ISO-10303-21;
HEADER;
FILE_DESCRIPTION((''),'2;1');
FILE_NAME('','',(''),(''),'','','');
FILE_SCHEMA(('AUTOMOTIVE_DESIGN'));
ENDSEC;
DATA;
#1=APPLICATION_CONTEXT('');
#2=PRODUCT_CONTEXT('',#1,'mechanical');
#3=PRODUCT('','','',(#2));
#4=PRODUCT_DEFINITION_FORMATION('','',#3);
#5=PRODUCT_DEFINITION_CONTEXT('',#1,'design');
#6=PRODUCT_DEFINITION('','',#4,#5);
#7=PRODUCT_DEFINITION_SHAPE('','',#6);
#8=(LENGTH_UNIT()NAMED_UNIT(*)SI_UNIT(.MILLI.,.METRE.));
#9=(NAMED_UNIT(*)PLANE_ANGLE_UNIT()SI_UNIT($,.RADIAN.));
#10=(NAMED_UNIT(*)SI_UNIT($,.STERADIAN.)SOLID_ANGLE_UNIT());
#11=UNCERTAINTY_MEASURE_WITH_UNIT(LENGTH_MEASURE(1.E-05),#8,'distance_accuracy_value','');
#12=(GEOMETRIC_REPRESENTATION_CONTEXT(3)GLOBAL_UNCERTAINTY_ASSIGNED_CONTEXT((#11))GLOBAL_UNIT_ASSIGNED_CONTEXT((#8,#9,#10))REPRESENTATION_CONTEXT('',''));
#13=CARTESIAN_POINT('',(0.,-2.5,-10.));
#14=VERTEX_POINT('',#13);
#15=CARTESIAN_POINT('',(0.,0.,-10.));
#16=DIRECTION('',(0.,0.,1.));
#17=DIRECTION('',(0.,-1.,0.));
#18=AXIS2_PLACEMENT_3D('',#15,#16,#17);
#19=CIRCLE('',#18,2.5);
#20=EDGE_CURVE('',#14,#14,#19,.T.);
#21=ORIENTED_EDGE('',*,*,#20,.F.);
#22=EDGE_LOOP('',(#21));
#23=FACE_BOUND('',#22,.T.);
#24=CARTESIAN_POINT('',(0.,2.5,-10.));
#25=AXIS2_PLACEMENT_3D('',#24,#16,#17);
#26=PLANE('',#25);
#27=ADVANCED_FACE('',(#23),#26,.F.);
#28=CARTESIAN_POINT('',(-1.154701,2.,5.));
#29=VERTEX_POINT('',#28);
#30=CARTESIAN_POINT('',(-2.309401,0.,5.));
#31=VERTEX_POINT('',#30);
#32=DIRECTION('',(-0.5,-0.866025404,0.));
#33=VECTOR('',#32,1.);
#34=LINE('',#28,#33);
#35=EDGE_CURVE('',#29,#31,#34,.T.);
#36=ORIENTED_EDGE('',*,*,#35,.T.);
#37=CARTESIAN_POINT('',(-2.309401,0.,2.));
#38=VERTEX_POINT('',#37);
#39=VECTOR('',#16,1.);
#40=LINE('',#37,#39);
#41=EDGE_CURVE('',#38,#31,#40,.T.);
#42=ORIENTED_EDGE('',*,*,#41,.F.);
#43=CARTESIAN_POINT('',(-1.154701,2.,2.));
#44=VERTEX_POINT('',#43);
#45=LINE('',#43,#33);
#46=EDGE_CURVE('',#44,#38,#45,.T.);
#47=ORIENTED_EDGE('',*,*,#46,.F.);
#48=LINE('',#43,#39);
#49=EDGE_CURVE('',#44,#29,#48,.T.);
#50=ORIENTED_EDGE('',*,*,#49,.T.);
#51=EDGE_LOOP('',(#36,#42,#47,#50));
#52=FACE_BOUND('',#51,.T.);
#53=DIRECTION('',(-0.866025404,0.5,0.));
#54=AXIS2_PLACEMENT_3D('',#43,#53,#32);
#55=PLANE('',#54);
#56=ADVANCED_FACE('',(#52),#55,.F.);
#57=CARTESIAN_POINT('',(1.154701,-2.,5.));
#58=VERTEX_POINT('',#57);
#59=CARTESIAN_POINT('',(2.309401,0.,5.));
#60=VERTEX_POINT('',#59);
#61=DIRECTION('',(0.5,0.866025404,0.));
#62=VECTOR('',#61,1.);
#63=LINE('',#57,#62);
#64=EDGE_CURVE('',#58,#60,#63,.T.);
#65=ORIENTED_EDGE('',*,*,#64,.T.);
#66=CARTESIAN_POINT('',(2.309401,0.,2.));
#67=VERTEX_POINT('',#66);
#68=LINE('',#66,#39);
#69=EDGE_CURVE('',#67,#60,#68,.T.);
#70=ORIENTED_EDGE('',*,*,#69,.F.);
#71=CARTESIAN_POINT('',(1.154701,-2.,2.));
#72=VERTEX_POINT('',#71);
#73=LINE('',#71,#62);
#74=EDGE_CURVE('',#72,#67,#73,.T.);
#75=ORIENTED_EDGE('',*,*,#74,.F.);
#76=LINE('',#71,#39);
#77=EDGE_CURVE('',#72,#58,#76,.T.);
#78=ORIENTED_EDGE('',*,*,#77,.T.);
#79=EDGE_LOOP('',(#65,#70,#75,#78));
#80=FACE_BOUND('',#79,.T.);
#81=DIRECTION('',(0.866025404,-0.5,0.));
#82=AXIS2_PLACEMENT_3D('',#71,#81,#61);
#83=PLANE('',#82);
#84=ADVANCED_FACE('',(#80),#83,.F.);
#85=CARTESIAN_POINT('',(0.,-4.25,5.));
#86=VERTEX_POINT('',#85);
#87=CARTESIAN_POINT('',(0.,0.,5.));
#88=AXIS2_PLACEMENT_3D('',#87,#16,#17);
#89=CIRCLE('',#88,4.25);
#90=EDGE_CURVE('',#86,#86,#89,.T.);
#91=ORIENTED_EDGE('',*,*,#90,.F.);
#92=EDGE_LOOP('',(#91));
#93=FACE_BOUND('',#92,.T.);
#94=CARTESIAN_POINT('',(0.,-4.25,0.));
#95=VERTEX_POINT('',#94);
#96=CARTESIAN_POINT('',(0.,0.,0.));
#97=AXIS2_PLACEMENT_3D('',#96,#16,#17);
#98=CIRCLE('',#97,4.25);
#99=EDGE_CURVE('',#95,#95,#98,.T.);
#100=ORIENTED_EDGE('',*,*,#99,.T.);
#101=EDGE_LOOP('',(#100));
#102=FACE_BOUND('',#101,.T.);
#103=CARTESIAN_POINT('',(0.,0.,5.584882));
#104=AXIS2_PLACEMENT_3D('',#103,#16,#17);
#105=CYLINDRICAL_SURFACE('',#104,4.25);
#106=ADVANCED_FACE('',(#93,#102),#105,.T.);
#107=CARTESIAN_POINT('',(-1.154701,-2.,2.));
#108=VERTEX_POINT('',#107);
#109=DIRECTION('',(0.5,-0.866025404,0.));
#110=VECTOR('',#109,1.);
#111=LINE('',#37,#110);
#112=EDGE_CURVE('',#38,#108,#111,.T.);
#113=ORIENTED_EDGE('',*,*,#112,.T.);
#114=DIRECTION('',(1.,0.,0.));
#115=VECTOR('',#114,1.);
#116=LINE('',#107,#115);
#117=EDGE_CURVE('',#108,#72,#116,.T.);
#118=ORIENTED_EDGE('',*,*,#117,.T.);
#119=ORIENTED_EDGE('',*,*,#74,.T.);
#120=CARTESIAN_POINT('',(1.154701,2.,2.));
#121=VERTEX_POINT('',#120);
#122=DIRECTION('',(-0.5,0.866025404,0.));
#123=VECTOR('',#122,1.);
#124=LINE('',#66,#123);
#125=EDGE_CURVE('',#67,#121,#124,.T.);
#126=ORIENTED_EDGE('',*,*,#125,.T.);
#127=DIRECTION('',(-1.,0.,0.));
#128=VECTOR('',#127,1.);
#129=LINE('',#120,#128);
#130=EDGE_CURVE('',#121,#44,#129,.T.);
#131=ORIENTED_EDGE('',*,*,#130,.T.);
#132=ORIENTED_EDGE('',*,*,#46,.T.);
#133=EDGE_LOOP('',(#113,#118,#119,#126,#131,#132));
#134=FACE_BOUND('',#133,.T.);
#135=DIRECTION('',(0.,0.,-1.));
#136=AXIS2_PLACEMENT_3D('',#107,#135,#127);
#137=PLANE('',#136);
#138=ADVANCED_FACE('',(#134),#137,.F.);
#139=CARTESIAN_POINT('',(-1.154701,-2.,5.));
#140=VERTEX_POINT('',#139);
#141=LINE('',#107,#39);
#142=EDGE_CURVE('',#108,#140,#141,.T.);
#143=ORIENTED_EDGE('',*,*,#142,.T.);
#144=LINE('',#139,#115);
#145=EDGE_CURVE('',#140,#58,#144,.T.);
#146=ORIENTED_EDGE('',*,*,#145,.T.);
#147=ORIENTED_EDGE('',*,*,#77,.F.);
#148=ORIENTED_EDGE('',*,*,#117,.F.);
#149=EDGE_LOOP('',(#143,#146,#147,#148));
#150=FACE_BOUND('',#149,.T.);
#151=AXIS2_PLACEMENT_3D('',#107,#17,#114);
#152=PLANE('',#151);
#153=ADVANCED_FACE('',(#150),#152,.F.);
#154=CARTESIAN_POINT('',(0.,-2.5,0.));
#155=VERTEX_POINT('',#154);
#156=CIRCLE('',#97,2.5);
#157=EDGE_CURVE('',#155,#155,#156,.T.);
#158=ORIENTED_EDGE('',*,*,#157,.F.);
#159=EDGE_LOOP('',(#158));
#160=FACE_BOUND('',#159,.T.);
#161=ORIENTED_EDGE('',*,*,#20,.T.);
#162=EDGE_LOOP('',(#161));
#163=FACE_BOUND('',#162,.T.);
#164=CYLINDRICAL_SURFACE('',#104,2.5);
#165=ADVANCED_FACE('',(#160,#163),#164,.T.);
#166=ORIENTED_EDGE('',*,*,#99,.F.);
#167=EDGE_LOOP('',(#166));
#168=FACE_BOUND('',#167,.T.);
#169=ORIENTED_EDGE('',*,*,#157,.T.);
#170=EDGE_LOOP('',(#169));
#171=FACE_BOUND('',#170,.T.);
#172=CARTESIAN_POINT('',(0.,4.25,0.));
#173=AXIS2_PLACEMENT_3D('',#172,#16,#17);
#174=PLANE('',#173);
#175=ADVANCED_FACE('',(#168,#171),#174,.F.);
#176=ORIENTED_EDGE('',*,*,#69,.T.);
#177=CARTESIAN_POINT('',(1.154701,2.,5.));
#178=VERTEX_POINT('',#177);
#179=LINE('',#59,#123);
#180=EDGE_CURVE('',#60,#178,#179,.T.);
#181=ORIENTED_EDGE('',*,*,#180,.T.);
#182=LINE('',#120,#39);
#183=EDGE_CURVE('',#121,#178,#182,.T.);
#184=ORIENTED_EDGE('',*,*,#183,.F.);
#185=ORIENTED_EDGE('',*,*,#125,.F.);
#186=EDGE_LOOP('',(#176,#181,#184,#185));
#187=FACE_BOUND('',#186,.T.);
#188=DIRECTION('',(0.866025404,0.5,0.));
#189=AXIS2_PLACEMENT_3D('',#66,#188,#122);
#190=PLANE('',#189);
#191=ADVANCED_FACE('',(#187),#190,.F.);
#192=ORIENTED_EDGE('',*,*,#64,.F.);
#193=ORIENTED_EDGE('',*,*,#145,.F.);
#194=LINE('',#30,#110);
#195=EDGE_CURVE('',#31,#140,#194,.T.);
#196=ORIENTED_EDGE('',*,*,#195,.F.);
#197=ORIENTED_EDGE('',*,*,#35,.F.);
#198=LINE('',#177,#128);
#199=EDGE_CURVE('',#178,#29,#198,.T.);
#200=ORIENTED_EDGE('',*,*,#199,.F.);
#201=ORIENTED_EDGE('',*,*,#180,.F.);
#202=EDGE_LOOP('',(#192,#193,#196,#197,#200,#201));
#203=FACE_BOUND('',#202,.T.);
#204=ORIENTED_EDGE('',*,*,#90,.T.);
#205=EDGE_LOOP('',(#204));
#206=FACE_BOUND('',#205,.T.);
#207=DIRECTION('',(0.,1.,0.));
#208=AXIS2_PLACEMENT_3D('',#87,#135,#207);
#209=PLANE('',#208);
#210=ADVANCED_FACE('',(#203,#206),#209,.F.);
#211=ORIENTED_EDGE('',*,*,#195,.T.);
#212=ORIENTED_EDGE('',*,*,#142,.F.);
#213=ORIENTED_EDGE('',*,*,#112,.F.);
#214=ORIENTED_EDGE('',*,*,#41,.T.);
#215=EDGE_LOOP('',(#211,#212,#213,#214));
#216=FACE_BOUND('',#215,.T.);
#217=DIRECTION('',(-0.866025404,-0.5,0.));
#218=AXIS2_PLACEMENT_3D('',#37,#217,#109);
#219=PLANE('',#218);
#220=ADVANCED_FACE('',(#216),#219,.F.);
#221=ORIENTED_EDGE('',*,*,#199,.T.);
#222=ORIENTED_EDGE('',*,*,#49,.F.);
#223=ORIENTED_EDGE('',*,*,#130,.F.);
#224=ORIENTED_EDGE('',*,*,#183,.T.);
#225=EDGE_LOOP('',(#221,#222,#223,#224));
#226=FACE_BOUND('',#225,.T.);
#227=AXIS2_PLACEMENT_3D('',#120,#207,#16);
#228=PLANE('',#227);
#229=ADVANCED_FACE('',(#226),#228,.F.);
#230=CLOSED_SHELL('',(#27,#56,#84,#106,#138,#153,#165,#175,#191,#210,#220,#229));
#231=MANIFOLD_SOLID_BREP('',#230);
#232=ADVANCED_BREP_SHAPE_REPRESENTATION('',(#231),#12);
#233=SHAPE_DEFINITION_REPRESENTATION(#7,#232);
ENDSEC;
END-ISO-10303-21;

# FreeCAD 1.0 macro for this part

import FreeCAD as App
import Part
import Sketcher
from FreeCAD import Vector
Q = App.Units.Quantity


def add_polygon(sketch, points):
    """Adds a closed chain of lines whose ends are joined by coincident constraints."""
    first, n = sketch.GeometryCount, len(points)
    for a, b in zip(points, points[1:] + points[:1]):
        sketch.addGeometry(Part.LineSegment(App.Vector(*a, 0), App.Vector(*b, 0)), False)
    for i in range(n):
        sketch.addConstraint(Sketcher.Constraint("Coincident", first + i, 2, first + (i + 1) % n, 1))

doc = App.newDocument("Part")
body = doc.addObject("PartDesign::Body", "Body")

sketch1 = doc.addObject("Sketcher::SketchObject", "Sketch")
body.addObject(sketch1)
sketch1.AttachmentSupport = (doc.YZ_Plane, [""])
sketch1.MapMode = "FlatFace"
add_polygon(sketch1, [(4.2, 5), (0, 5), (0, -10), (2.5, -10), (2.5, 0), (4.2, 0)])
sketch1.addConstraint(Sketcher.Constraint("Horizontal", 0))
sketch1.addConstraint(Sketcher.Constraint("Vertical", 1))
sketch1.addConstraint(Sketcher.Constraint("Horizontal", 2))
sketch1.addConstraint(Sketcher.Constraint("Vertical", 3))
sketch1.addConstraint(Sketcher.Constraint("Horizontal", 4))
sketch1.addConstraint(Sketcher.Constraint("Vertical", 5))
sketch1.addConstraint(Sketcher.Constraint("PointOnObject", 0, 2, -2))
sketch1.addConstraint(Sketcher.Constraint("PointOnObject", 3, 2, -1))
sketch1.addConstraint(Sketcher.Constraint("DistanceY", 1, 2, 1, 1, 15.0))
sketch1.addConstraint(Sketcher.Constraint("DistanceY", 3, 1, 3, 2, 10.0))
sketch1.addConstraint(Sketcher.Constraint("DistanceX", 2, 1, 2, 2, 2.5))
sketch1.addConstraint(Sketcher.Constraint("DistanceX", 0, 2, 0, 1, 4.25))
revolution = doc.addObject("PartDesign::Revolution", "Revolution")
body.addObject(revolution)
revolution.Profile = sketch1
revolution.ReferenceAxis = (sketch1, ["V_Axis"])
revolution.Angle = 360

sketch2 = doc.addObject("Sketcher::SketchObject", "Sketch001")
body.addObject(sketch2)
sketch2.AttachmentSupport = (doc.XY_Plane, [""])
sketch2.MapMode = "FlatFace"
sketch2.AttachmentOffset = App.Placement(Vector(0, 0, 5), App.Rotation())
add_polygon(sketch2, [(1.2, -2), (2.3, 0), (1.2, 2), (-1.2, 2), (-2.3, 0), (-1.2, -2)])
sketch2.addConstraint(Sketcher.Constraint("Horizontal", 2))
sketch2.addConstraint(Sketcher.Constraint("Horizontal", 5))
sketch2.addConstraint(Sketcher.Constraint("Symmetric", 0, 2, 3, 2, -1, 1))
sketch2.addConstraint(Sketcher.Constraint("Symmetric", 1, 2, 4, 2, -1, 1))
sketch2.addConstraint(Sketcher.Constraint("PointOnObject", 0, 2, -1))
sketch2.addConstraint(Sketcher.Constraint("Parallel", 0, 3))
sketch2.addConstraint(Sketcher.Constraint("Vertical", 2, 2, 4, 2))
sketch2.addConstraint(Sketcher.Constraint("Angle", 0, Q("60 deg")))
sketch2.addConstraint(Sketcher.Constraint("DistanceY", -1, 1, 1, 2, 2.0))
sketch2.addConstraint(Sketcher.Constraint("DistanceX", 2, 2, 2, 1, 2.309401))
pocket1 = doc.addObject("PartDesign::Pocket", "Pocket")
body.addObject(pocket1)
pocket1.Profile = sketch2
pocket1.Length = 3

doc.recompute()
